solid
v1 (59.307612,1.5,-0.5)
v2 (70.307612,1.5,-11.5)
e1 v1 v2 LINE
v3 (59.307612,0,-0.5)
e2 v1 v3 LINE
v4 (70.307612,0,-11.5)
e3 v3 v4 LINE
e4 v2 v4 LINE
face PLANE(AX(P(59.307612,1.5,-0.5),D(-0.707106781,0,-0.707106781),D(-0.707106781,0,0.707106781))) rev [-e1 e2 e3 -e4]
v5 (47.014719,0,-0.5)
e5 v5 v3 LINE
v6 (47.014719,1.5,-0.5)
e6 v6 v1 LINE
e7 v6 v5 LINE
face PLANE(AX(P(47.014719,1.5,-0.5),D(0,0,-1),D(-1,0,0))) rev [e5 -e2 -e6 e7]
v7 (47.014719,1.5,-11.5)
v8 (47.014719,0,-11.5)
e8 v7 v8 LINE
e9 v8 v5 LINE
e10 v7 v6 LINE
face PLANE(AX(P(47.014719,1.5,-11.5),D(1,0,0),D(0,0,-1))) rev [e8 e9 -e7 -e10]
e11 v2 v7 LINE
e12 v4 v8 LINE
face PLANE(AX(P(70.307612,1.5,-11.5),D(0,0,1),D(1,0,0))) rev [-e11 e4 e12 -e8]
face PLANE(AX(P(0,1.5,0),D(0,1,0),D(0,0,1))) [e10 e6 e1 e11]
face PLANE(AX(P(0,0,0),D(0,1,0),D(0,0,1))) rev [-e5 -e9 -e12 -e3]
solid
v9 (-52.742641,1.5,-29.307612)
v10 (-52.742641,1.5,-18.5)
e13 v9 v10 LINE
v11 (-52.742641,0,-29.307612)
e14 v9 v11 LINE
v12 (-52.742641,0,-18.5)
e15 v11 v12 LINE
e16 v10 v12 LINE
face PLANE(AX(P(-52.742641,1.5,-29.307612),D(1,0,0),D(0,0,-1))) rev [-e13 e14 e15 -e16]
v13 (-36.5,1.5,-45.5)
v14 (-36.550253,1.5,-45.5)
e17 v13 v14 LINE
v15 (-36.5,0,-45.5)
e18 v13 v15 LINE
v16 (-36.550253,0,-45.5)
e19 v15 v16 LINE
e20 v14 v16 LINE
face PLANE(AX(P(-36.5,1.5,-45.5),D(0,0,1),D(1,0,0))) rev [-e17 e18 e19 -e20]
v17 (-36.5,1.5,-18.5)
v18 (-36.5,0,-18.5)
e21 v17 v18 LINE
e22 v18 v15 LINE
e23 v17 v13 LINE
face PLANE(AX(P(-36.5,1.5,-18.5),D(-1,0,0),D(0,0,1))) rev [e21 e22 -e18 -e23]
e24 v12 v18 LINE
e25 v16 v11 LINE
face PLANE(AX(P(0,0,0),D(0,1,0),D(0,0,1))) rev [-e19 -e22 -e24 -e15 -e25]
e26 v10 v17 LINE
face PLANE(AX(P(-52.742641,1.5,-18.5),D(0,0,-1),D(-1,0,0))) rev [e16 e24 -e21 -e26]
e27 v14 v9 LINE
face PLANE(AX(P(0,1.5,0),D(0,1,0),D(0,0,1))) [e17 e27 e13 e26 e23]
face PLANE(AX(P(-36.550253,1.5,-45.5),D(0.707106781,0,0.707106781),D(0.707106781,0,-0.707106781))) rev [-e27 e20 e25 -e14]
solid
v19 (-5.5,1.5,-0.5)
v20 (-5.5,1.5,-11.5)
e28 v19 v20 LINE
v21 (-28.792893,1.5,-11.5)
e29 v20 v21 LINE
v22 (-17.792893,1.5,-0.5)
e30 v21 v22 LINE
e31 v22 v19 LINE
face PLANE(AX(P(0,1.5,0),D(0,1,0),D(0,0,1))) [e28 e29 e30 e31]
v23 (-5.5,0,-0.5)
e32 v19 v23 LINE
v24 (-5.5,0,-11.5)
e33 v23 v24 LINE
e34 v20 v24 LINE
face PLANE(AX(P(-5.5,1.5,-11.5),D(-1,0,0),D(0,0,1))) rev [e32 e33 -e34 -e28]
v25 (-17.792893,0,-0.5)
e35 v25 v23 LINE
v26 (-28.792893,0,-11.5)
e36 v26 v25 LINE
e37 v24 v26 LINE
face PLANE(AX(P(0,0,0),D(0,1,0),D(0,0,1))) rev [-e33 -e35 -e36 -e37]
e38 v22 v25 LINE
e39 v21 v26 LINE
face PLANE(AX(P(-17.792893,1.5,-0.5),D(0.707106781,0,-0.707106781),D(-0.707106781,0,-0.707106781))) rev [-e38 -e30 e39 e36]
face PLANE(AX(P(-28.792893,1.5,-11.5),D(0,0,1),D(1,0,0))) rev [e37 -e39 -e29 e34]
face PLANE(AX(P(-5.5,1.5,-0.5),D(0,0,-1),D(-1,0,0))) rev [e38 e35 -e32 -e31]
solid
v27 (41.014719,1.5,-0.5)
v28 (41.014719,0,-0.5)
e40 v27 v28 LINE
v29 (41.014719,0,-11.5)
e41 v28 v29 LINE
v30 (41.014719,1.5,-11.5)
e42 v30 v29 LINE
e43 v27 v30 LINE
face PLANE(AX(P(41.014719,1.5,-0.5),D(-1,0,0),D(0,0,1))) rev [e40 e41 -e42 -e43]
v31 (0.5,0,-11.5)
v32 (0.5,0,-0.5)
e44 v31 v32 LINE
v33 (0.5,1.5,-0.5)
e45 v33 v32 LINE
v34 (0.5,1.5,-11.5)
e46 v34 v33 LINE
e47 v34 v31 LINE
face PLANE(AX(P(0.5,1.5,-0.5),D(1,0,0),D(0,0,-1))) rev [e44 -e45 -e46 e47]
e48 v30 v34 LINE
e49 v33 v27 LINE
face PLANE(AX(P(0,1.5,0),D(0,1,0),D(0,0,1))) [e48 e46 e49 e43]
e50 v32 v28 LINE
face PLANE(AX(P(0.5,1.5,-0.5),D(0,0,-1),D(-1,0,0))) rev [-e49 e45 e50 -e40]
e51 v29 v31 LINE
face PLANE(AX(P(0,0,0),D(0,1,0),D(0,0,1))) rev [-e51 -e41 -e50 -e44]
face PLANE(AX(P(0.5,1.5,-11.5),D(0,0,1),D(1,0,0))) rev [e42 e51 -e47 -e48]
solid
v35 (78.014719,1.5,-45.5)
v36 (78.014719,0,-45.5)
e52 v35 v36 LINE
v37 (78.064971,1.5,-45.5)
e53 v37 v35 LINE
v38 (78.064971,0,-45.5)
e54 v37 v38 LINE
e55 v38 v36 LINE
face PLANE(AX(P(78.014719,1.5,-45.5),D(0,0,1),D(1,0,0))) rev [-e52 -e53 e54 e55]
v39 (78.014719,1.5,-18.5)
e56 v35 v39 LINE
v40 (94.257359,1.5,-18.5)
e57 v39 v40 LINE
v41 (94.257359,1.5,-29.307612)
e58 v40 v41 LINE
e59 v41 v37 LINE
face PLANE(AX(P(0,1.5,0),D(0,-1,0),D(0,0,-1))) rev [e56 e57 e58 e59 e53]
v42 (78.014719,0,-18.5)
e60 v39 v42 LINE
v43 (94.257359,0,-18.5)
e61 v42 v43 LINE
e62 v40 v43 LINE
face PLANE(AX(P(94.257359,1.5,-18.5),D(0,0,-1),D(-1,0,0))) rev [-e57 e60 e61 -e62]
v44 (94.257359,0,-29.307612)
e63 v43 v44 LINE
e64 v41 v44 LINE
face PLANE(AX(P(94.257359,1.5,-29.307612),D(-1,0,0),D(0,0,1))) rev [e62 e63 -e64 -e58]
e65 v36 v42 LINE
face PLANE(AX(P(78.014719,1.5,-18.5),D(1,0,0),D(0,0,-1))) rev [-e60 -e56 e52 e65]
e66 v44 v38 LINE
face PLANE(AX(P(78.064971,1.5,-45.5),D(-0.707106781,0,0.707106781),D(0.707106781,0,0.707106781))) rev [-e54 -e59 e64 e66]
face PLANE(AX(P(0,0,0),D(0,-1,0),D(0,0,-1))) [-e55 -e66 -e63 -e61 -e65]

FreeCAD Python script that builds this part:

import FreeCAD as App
import Part
import Sketcher
Q = App.Units.Quantity

doc = App.newDocument("Part")
params = doc.addObject("Spreadsheet::Sheet", "Params")
for row, (alias, value) in enumerate([
    ("sketch1_height", "27 mm"),
    ("pad1_length", "1.5 mm"),
    ("sketch2_height", "11 mm"),
    ("pad2_length", "1.5 mm"),
    ("sketch3_height", "11 mm"),
    ("pad3_length", "1.5 mm"),
    ("sketch4_height", "11 mm"),
    ("pad4_length", "1.5 mm"),
    ("sketch5_height", "27 mm"),
    ("pad5_length", "1.5 mm"),
], start=1):
    params.set(f"A{row}", alias)
    params.set(f"B{row}", "=" + value)
    params.setAlias(f"B{row}", alias)

body = doc.addObject("PartDesign::Body", "Body")

# Sketch on XZ plane
sketch1 = doc.addObject("Sketcher::SketchObject", "Sketch")
body.addObject(sketch1)
sketch1.AttachmentSupport = (doc.XZ_Plane, [""])
sketch1.MapMode = "FlatFace"
sketch1.addGeometry([
    Part.LineSegment(App.Vector(-36.5, -18.5, 0), App.Vector(-36.5, -45.5, 0)),  # 0
    Part.LineSegment(App.Vector(-36.5, -45.5, 0), App.Vector(-36.55, -45.5, 0)),  # 1
    Part.LineSegment(App.Vector(-36.55, -45.5, 0), App.Vector(-52.74, -29.31, 0)),  # 2
    Part.LineSegment(App.Vector(-52.74, -29.31, 0), App.Vector(-52.74, -18.5, 0)),  # 3
    Part.LineSegment(App.Vector(-52.74, -18.5, 0), App.Vector(-36.5, -18.5, 0)),  # 4
], False)
sketch1.addConstraint([
    Sketcher.Constraint("Coincident", 0, 2, 1, 1),
    Sketcher.Constraint("Coincident", 1, 2, 2, 1),
    Sketcher.Constraint("Coincident", 2, 2, 3, 1),
    Sketcher.Constraint("Coincident", 3, 2, 4, 1),
    Sketcher.Constraint("Coincident", 4, 2, 0, 1),
    Sketcher.Constraint("Vertical", 0),
    Sketcher.Constraint("Horizontal", 1),
    Sketcher.Constraint("Vertical", 3),
    Sketcher.Constraint("Horizontal", 4),
    Sketcher.Constraint("DistanceY", 0, 2, 0, 1, 27.0),
    Sketcher.Constraint("Angle", 2, Q("135 deg")),
    Sketcher.Constraint("DistanceX", 0, 2, -1, 1, 36.5),
    Sketcher.Constraint("DistanceY", 0, 2, -1, 1, 45.5),
    Sketcher.Constraint("DistanceX", 4, 1, 4, 2, 16.242641),
    Sketcher.Constraint("DistanceY", 3, 1, 3, 2, 10.807612),
])
sketch1.setExpression("Constraints[9]", "Params.sketch1_height")
pad1 = doc.addObject("PartDesign::Pad", "Pad")
body.addObject(pad1)
pad1.Profile = sketch1
pad1.setExpression("Length", "Params.pad1_length")
pad1.Reversed = True
body2 = doc.addObject("PartDesign::Body", "Body001")

# Sketch on XZ plane
sketch2 = doc.addObject("Sketcher::SketchObject", "Sketch001")
body2.addObject(sketch2)
sketch2.AttachmentSupport = (doc.getObject("XZ_Plane001"), [""])
sketch2.MapMode = "FlatFace"
sketch2.addGeometry([
    Part.LineSegment(App.Vector(0, -12, 0), App.Vector(0, 0, 0)),
    Part.LineSegment(App.Vector(0, 0, 0), App.Vector(41, 0, 0)),
    Part.LineSegment(App.Vector(41, 0, 0), App.Vector(41, -12, 0)),
    Part.LineSegment(App.Vector(41, -12, 0), App.Vector(0, -12, 0)),
], False)
sketch2.addConstraint([
    Sketcher.Constraint("Coincident", 0, 2, 1, 1),
    Sketcher.Constraint("Coincident", 1, 2, 2, 1),
    Sketcher.Constraint("Coincident", 2, 2, 3, 1),
    Sketcher.Constraint("Coincident", 3, 2, 0, 1),
    Sketcher.Constraint("Vertical", 0),
    Sketcher.Constraint("Horizontal", 1),
    Sketcher.Constraint("Vertical", 2),
    Sketcher.Constraint("Horizontal", 3),
    Sketcher.Constraint("DistanceY", 0, 1, 0, 2, 11.0),
    Sketcher.Constraint("DistanceX", -1, 1, 0, 2, 0.5),
    Sketcher.Constraint("DistanceY", 0, 2, -1, 1, 0.5),
    Sketcher.Constraint("DistanceX", 1, 1, 1, 2, 40.514719),
])
sketch2.setExpression("Constraints[8]", "Params.sketch2_height")
pad2 = doc.addObject("PartDesign::Pad", "Pad001")
body2.addObject(pad2)
pad2.Profile = sketch2
pad2.setExpression("Length", "Params.pad2_length")
pad2.Reversed = True
body3 = doc.addObject("PartDesign::Body", "Body002")

# Sketch on XZ plane
sketch3 = doc.addObject("Sketcher::SketchObject", "Sketch002")
body3.addObject(sketch3)
sketch3.AttachmentSupport = (doc.getObject("XZ_Plane002"), [""])
sketch3.MapMode = "FlatFace"
sketch3.addGeometry([
    Part.LineSegment(App.Vector(-29, -12, 0), App.Vector(-18, 0, 0)),
    Part.LineSegment(App.Vector(-18, 0, 0), App.Vector(-6, 0, 0)),
    Part.LineSegment(App.Vector(-6, 0, 0), App.Vector(-6, -12, 0)),
    Part.LineSegment(App.Vector(-6, -12, 0), App.Vector(-29, -12, 0)),
], False)
sketch3.addConstraint([
    Sketcher.Constraint("Coincident", 0, 2, 1, 1),
    Sketcher.Constraint("Coincident", 1, 2, 2, 1),
    Sketcher.Constraint("Coincident", 2, 2, 3, 1),
    Sketcher.Constraint("Coincident", 3, 2, 0, 1),
    Sketcher.Constraint("Horizontal", 1),
    Sketcher.Constraint("Vertical", 2),
    Sketcher.Constraint("Horizontal", 3),
    Sketcher.Constraint("DistanceY", 2, 2, 2, 1, 11.0),
    Sketcher.Constraint("Angle", 0, Q("45 deg")),
    Sketcher.Constraint("DistanceY", 0, 2, -1, 1, 0.5),
    Sketcher.Constraint("DistanceX", 1, 2, -1, 1, 5.5),
    Sketcher.Constraint("DistanceX", 1, 1, 1, 2, 12.292893),
])
sketch3.setExpression("Constraints[7]", "Params.sketch3_height")
pad3 = doc.addObject("PartDesign::Pad", "Pad002")
body3.addObject(pad3)
pad3.Profile = sketch3
pad3.setExpression("Length", "Params.pad3_length")
pad3.Reversed = True
body4 = doc.addObject("PartDesign::Body", "Body003")

# Sketch on XZ plane
sketch4 = doc.addObject("Sketcher::SketchObject", "Sketch003")
body4.addObject(sketch4)
sketch4.AttachmentSupport = (doc.getObject("XZ_Plane003"), [""])
sketch4.MapMode = "FlatFace"
sketch4.addGeometry([
    Part.LineSegment(App.Vector(47, 0, 0), App.Vector(59, 0, 0)),
    Part.LineSegment(App.Vector(59, 0, 0), App.Vector(70, -12, 0)),
    Part.LineSegment(App.Vector(70, -12, 0), App.Vector(47, -12, 0)),
    Part.LineSegment(App.Vector(47, -12, 0), App.Vector(47, 0, 0)),
], False)
sketch4.addConstraint([
    Sketcher.Constraint("Coincident", 0, 2, 1, 1),
    Sketcher.Constraint("Coincident", 1, 2, 2, 1),
    Sketcher.Constraint("Coincident", 2, 2, 3, 1),
    Sketcher.Constraint("Coincident", 3, 2, 0, 1),
    Sketcher.Constraint("Horizontal", 0),
    Sketcher.Constraint("Horizontal", 2),
    Sketcher.Constraint("Vertical", 3),
    Sketcher.Constraint("DistanceY", 3, 1, 3, 2, 11.0),
    Sketcher.Constraint("Angle", 1, Q("-45 deg")),
    Sketcher.Constraint("DistanceY", 0, 2, -1, 1, 0.5),
    Sketcher.Constraint("DistanceX", 0, 1, 0, 2, 12.292893),
    Sketcher.Constraint("DistanceX", -1, 1, 0, 2, 59.307612),
])
sketch4.setExpression("Constraints[7]", "Params.sketch4_height")
pad4 = doc.addObject("PartDesign::Pad", "Pad003")
body4.addObject(pad4)
pad4.Profile = sketch4
pad4.setExpression("Length", "Params.pad4_length")
pad4.Reversed = True
body5 = doc.addObject("PartDesign::Body", "Body004")

# Sketch on XZ plane
sketch5 = doc.addObject("Sketcher::SketchObject", "Sketch004")
body5.addObject(sketch5)
sketch5.AttachmentSupport = (doc.getObject("XZ_Plane004"), [""])
sketch5.MapMode = "FlatFace"
sketch5.addGeometry([
    Part.LineSegment(App.Vector(78.01, -18.5, 0), App.Vector(94.26, -18.5, 0)),  # 0
    Part.LineSegment(App.Vector(94.26, -18.5, 0), App.Vector(94.26, -29.31, 0)),  # 1
    Part.LineSegment(App.Vector(94.26, -29.31, 0), App.Vector(78.06, -45.5, 0)),  # 2
    Part.LineSegment(App.Vector(78.06, -45.5, 0), App.Vector(78.01, -45.5, 0)),  # 3
    Part.LineSegment(App.Vector(78.01, -45.5, 0), App.Vector(78.01, -18.5, 0)),  # 4
], False)
sketch5.addConstraint([
    Sketcher.Constraint("Coincident", 0, 2, 1, 1),
    Sketcher.Constraint("Coincident", 1, 2, 2, 1),
    Sketcher.Constraint("Coincident", 2, 2, 3, 1),
    Sketcher.Constraint("Coincident", 3, 2, 4, 1),
    Sketcher.Constraint("Coincident", 4, 2, 0, 1),
    Sketcher.Constraint("Horizontal", 0),
    Sketcher.Constraint("Vertical", 1),
    Sketcher.Constraint("Horizontal", 3),
    Sketcher.Constraint("Vertical", 4),
    Sketcher.Constraint("DistanceY", 4, 1, 4, 2, 27.0),
    Sketcher.Constraint("Angle", 2, Q("-135 deg")),
    Sketcher.Constraint("DistanceY", 0, 2, -1, 1, 18.5),
    Sketcher.Constraint("DistanceX", 0, 1, 0, 2, 16.242641),
    Sketcher.Constraint("DistanceY", 1, 2, 1, 1, 10.807612),
    Sketcher.Constraint("DistanceX", -1, 1, 0, 2, 94.257359),
])
sketch5.setExpression("Constraints[9]", "Params.sketch5_height")
pad5 = doc.addObject("PartDesign::Pad", "Pad004")
body5.addObject(pad5)
pad5.Profile = sketch5
pad5.setExpression("Length", "Params.pad5_length")
pad5.Reversed = True

doc.recompute()
